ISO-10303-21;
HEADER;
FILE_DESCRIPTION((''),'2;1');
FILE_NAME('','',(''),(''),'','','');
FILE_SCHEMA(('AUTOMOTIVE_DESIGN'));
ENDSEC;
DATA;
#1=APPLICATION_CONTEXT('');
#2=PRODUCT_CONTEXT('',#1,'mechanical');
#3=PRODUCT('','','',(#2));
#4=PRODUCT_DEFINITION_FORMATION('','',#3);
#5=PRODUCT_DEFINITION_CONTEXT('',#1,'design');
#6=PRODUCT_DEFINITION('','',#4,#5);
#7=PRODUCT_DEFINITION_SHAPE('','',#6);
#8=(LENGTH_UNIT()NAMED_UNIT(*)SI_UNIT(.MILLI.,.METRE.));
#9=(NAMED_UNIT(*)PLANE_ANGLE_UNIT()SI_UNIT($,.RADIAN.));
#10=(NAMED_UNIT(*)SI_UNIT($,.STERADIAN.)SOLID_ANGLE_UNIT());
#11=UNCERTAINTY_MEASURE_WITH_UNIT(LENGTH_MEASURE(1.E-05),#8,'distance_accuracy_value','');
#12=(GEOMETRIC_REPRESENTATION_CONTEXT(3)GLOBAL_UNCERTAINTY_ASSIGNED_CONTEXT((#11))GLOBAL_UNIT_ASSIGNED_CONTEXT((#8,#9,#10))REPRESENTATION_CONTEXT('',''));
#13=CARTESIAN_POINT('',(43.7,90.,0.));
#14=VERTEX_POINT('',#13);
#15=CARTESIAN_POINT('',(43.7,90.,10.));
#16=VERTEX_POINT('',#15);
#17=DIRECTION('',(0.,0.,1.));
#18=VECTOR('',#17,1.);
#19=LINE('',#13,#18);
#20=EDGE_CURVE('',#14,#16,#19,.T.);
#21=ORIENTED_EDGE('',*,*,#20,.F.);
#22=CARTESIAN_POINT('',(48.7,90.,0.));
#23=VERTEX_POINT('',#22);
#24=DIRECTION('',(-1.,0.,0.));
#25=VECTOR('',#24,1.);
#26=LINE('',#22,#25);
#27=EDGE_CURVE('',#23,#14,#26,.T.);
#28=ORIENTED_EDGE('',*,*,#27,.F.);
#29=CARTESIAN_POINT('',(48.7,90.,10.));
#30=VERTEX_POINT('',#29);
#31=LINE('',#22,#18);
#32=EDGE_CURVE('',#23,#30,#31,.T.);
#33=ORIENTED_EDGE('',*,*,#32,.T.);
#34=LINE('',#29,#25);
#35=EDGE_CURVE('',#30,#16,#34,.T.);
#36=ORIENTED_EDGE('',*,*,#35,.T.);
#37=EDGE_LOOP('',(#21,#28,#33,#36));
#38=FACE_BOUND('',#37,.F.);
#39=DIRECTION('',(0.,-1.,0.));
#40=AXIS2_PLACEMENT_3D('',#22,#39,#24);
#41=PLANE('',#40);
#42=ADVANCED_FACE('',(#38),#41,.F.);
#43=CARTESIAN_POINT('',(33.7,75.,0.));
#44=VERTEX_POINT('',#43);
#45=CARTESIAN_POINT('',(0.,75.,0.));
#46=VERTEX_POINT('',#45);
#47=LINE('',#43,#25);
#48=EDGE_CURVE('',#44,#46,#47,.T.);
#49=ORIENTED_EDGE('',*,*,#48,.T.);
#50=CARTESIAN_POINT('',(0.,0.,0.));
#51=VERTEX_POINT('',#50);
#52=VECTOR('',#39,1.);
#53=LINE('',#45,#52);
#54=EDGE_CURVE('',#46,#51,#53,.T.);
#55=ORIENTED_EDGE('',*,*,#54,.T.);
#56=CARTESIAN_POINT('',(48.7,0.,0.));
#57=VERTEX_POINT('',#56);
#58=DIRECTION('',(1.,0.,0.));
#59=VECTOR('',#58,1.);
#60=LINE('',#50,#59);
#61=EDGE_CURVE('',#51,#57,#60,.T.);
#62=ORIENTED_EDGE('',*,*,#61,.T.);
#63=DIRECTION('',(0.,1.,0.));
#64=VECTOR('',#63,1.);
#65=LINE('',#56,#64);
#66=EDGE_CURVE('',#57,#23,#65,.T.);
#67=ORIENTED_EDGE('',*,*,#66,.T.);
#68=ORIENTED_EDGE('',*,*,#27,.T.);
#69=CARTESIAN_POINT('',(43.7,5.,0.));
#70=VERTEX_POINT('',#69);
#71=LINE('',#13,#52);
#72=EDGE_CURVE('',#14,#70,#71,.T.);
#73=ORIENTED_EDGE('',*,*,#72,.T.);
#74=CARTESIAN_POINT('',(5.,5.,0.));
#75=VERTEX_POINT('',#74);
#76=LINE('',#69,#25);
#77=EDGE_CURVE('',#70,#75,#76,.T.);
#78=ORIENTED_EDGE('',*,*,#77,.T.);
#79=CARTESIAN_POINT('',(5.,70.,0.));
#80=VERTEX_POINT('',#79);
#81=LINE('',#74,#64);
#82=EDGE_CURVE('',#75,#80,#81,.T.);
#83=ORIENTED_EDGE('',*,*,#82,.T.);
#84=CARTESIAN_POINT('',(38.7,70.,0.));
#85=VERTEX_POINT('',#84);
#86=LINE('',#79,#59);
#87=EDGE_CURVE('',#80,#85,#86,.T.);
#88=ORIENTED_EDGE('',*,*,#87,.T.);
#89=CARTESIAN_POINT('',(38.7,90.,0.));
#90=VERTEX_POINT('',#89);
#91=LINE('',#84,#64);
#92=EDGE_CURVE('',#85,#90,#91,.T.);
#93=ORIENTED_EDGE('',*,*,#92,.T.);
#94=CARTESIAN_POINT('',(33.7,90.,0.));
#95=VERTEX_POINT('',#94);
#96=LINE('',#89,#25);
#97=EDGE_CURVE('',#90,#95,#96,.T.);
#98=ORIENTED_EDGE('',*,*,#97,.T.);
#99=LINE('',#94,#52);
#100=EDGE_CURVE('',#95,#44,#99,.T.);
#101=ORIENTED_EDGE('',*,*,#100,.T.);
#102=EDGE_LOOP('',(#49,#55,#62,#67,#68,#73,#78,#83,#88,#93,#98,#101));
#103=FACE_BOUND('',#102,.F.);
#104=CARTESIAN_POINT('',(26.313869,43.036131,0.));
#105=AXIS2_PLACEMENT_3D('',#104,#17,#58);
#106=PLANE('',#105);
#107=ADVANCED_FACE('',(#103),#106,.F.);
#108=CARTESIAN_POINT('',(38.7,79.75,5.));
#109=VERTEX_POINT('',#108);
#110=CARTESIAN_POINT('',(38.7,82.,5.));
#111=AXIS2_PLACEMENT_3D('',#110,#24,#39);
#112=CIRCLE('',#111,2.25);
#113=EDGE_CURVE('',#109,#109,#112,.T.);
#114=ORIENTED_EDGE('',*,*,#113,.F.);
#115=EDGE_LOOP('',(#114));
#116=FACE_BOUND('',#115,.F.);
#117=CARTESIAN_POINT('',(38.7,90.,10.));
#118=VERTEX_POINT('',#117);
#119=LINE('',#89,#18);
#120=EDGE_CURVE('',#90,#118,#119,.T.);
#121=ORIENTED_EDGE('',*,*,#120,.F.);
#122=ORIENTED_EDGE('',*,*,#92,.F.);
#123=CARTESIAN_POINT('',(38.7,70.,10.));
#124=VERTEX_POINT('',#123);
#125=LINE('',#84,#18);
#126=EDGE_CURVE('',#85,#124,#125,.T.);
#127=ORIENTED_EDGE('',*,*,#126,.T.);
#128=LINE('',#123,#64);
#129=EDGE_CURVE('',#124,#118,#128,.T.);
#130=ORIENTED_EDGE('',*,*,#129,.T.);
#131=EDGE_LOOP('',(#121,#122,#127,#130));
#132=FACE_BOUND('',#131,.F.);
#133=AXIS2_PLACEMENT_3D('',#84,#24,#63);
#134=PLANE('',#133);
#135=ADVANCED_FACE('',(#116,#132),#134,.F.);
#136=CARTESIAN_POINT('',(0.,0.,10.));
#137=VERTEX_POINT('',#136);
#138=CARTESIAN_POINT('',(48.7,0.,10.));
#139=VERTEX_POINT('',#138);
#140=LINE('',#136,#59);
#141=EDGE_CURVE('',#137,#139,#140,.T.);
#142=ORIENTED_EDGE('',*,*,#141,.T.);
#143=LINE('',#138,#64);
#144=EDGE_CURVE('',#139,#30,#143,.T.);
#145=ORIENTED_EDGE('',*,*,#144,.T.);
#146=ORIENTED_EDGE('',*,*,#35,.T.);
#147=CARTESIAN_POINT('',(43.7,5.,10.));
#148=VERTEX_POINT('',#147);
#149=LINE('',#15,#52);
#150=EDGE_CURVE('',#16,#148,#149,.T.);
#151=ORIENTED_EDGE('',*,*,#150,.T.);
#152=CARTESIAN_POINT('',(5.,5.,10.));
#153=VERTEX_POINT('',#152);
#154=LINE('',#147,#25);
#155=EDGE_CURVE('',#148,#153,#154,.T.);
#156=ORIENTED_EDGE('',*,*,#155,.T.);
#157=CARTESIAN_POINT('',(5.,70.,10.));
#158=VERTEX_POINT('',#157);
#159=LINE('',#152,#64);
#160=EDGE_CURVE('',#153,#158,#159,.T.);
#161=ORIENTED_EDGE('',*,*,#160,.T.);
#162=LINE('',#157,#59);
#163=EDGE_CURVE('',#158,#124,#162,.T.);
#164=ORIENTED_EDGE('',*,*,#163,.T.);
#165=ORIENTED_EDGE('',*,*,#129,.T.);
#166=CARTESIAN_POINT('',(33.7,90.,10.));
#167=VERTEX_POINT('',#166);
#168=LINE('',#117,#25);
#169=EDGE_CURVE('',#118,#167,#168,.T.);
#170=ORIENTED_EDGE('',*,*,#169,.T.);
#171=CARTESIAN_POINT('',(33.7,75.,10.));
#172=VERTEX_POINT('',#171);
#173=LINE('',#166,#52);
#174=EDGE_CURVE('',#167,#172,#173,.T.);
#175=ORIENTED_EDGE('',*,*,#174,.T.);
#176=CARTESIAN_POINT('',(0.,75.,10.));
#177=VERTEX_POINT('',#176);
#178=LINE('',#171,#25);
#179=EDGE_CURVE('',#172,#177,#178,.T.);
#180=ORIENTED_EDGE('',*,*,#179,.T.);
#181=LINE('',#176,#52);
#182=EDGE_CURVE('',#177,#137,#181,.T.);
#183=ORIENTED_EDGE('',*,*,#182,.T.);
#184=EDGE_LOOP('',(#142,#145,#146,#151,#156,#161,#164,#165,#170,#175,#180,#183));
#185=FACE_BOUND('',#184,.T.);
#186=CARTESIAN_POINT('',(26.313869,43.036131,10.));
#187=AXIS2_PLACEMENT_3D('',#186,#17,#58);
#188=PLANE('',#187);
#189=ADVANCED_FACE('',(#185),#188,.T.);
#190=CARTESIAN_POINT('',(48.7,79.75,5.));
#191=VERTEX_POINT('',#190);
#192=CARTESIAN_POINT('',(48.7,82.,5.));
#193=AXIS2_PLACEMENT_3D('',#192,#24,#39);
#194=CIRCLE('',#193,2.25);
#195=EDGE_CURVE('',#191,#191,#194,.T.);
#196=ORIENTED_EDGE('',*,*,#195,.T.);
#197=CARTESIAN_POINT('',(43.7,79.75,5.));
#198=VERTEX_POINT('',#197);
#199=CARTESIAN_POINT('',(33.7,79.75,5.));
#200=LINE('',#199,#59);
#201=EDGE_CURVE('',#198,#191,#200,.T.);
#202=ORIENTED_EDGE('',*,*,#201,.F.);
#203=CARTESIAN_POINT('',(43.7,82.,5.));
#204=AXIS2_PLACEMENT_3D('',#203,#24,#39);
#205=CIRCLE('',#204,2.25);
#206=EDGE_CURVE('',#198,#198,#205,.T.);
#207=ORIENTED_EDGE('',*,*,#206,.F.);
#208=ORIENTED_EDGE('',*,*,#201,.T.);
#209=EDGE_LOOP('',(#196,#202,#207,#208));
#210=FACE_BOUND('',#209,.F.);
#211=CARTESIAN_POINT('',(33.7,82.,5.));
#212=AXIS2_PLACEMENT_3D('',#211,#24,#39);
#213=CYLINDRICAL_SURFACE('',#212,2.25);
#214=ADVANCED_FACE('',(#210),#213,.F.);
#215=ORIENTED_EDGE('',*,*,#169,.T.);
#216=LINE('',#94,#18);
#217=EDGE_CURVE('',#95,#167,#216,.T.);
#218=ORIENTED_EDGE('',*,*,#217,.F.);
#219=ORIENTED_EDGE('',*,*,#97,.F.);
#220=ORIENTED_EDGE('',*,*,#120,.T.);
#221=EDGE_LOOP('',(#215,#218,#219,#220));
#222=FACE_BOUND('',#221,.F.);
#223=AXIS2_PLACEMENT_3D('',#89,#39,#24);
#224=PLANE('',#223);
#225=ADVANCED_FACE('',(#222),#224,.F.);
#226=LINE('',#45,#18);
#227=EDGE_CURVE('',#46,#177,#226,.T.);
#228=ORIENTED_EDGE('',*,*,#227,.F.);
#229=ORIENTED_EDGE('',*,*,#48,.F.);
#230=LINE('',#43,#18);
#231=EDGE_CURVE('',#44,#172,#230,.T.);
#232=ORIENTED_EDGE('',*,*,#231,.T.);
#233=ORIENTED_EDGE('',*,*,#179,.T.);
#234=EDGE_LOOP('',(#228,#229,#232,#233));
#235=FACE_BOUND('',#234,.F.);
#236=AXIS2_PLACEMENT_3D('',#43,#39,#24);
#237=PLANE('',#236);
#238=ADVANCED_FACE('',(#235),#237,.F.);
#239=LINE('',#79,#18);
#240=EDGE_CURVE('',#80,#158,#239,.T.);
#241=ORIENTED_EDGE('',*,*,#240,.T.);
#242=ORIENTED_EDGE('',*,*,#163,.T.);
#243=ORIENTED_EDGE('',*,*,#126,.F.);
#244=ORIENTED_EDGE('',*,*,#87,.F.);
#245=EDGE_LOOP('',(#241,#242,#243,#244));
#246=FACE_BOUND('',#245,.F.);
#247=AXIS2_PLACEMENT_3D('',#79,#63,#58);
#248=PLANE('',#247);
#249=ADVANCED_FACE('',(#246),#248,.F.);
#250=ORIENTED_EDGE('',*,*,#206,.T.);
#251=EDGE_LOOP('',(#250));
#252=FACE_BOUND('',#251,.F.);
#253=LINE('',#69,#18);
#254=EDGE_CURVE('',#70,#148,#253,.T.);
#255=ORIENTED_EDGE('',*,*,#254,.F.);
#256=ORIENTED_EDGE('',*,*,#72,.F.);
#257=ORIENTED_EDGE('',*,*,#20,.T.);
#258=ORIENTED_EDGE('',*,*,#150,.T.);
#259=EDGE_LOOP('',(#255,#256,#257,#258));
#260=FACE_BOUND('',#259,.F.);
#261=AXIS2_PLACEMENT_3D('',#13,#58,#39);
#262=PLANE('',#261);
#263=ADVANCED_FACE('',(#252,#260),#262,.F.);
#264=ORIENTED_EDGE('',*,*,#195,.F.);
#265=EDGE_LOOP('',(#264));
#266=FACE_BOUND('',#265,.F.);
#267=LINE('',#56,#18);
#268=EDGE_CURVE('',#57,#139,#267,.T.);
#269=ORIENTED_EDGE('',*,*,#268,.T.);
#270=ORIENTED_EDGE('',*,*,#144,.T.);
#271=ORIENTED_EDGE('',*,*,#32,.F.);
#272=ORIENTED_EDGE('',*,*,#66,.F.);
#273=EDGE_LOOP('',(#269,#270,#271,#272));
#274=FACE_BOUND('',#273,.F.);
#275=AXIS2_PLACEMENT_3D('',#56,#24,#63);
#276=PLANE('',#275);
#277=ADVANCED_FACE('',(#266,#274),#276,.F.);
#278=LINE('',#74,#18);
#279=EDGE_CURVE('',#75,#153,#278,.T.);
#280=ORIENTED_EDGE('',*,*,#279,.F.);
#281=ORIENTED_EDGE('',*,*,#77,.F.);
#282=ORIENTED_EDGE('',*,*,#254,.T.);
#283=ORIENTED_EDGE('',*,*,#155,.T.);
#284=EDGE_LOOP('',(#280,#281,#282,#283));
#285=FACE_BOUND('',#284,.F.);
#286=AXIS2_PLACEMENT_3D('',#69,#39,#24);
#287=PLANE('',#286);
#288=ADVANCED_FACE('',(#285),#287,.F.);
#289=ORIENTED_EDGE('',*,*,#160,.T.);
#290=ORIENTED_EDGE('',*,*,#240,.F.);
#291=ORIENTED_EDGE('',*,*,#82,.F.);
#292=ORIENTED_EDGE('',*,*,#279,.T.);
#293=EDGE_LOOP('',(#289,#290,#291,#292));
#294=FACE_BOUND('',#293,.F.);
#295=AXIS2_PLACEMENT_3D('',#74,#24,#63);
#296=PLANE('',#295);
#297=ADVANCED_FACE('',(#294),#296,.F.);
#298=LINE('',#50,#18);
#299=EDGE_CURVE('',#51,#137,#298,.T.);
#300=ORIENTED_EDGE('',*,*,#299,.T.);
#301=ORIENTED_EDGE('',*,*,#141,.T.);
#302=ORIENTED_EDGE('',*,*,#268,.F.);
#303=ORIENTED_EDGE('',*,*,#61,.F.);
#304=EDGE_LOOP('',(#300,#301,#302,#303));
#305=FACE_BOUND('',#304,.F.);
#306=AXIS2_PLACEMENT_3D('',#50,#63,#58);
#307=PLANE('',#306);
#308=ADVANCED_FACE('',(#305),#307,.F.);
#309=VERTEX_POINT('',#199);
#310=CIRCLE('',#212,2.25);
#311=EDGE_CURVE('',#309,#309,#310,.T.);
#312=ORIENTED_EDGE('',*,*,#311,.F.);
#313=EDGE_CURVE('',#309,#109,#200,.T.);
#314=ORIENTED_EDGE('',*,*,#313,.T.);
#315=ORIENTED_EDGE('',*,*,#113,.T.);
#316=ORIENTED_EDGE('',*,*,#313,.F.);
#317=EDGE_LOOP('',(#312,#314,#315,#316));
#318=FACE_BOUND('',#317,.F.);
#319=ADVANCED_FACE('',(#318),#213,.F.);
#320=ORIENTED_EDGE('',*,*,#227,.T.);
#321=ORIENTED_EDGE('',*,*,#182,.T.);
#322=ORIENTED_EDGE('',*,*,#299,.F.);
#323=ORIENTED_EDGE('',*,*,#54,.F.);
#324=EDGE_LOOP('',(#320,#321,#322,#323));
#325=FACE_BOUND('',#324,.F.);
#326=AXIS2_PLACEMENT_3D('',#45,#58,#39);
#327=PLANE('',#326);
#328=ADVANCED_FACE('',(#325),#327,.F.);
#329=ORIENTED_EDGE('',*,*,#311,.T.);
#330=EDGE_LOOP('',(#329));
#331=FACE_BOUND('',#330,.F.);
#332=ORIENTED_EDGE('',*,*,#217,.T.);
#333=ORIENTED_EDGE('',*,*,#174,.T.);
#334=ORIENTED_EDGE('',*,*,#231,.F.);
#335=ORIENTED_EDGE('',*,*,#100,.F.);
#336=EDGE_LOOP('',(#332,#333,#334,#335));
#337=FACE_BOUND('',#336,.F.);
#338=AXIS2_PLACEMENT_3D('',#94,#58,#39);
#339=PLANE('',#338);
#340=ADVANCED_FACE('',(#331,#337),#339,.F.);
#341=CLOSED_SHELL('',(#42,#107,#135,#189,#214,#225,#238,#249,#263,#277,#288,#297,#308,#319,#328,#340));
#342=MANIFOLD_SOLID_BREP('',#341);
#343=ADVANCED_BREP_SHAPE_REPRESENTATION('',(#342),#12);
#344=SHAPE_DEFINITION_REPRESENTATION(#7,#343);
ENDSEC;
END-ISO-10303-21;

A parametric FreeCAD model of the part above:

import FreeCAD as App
import Part
import Sketcher
from FreeCAD import Vector

doc = App.newDocument("Part")
body = doc.addObject("PartDesign::Body", "Body")

# Sketch on XY plane
sketch1 = doc.addObject("Sketcher::SketchObject", "Sketch")
body.addObject(sketch1)
sketch1.AttachmentSupport = (doc.XY_Plane, [""])
sketch1.MapMode = "FlatFace"
sketch1.addGeometry([
    Part.LineSegment(Vector(0, 75, 0), Vector(0, 0, 0)),  # 0
    Part.LineSegment(Vector(0, 0, 0), Vector(49, 0, 0)),  # 1
    Part.LineSegment(Vector(49, 0, 0), Vector(49, 90, 0)),  # 2
    Part.LineSegment(Vector(49, 90, 0), Vector(44, 90, 0)),  # 3
    Part.LineSegment(Vector(44, 90, 0), Vector(44, 5, 0)),  # 4
    Part.LineSegment(Vector(44, 5, 0), Vector(5, 5, 0)),  # 5
    Part.LineSegment(Vector(5, 5, 0), Vector(5, 70, 0)),  # 6
    Part.LineSegment(Vector(5, 70, 0), Vector(39, 70, 0)),  # 7
    Part.LineSegment(Vector(39, 70, 0), Vector(39, 90, 0)),  # 8
    Part.LineSegment(Vector(39, 90, 0), Vector(34, 90, 0)),  # 9
    Part.LineSegment(Vector(34, 90, 0), Vector(34, 75, 0)),  # 10
    Part.LineSegment(Vector(34, 75, 0), Vector(0, 75, 0)),  # 11
], False)
sketch1.addConstraint([
    Sketcher.Constraint("Coincident", 0, 2, 1, 1),
    Sketcher.Constraint("Coincident", 1, 2, 2, 1),
    Sketcher.Constraint("Coincident", 2, 2, 3, 1),
    Sketcher.Constraint("Coincident", 3, 2, 4, 1),
    Sketcher.Constraint("Coincident", 4, 2, 5, 1),
    Sketcher.Constraint("Coincident", 5, 2, 6, 1),
    Sketcher.Constraint("Coincident", 6, 2, 7, 1),
    Sketcher.Constraint("Coincident", 7, 2, 8, 1),
    Sketcher.Constraint("Coincident", 8, 2, 9, 1),
    Sketcher.Constraint("Coincident", 9, 2, 10, 1),
    Sketcher.Constraint("Coincident", 10, 2, 11, 1),
    Sketcher.Constraint("Coincident", 11, 2, 0, 1),
    Sketcher.Constraint("Vertical", 0),
    Sketcher.Constraint("Horizontal", 1),
    Sketcher.Constraint("Vertical", 2),
    Sketcher.Constraint("Horizontal", 3),
    Sketcher.Constraint("Vertical", 4),
    Sketcher.Constraint("Horizontal", 5),
    Sketcher.Constraint("Vertical", 6),
    Sketcher.Constraint("Horizontal", 7),
    Sketcher.Constraint("Vertical", 8),
    Sketcher.Constraint("Horizontal", 9),
    Sketcher.Constraint("Vertical", 10),
    Sketcher.Constraint("Horizontal", 11),
    Sketcher.Constraint("Coincident", 0, 2, -1, 1),
    Sketcher.Constraint("Horizontal", 3, 2, 8, 2),
    Sketcher.Constraint("Equal", 3, 9),
    Sketcher.Constraint("Equal", 7, 11),
    Sketcher.Constraint("DistanceX", 3, 2, 3, 1, 5.0),
    Sketcher.Constraint("DistanceY", 0, 2, 0, 1, 75.0),
    Sketcher.Constraint("DistanceY", 2, 1, 2, 2, 90.0),
    Sketcher.Constraint("DistanceY", 4, 2, 4, 1, 85.0),
    Sketcher.Constraint("DistanceY", 6, 1, 6, 2, 65.0),
    Sketcher.Constraint("DistanceX", 1, 1, 1, 2, 48.7),
    Sketcher.Constraint("DistanceX", 7, 1, 7, 2, 33.7),
])
pad1 = doc.addObject("PartDesign::Pad", "Pad")
body.addObject(pad1)
pad1.Profile = sketch1
pad1.Length = 10

# Sketch on YZ plane
sketch2 = doc.addObject("Sketcher::SketchObject", "Sketch001")
body.addObject(sketch2)
sketch2.AttachmentSupport = (doc.YZ_Plane, [""])
sketch2.MapMode = "FlatFace"
sketch2.AttachmentOffset = App.Placement(Vector(0, 0, 33.7), App.Rotation())
sketch2.addGeometry(Part.Circle(Vector(82, 5, 0), Vector(0, 0, 1), 2.2), False)
sketch2.addConstraint([
    Sketcher.Constraint("Diameter", 0, 4.5),
    Sketcher.Constraint("DistanceX", -1, 1, 0, 3, 82.0),
    Sketcher.Constraint("DistanceY", -1, 1, 0, 3, 5.0),
])
pocket1 = doc.addObject("PartDesign::Pocket", "Pocket")
body.addObject(pocket1)
pocket1.Profile = sketch2
pocket1.Type = "ThroughAll"
pocket1.Reversed = True

doc.recompute()
